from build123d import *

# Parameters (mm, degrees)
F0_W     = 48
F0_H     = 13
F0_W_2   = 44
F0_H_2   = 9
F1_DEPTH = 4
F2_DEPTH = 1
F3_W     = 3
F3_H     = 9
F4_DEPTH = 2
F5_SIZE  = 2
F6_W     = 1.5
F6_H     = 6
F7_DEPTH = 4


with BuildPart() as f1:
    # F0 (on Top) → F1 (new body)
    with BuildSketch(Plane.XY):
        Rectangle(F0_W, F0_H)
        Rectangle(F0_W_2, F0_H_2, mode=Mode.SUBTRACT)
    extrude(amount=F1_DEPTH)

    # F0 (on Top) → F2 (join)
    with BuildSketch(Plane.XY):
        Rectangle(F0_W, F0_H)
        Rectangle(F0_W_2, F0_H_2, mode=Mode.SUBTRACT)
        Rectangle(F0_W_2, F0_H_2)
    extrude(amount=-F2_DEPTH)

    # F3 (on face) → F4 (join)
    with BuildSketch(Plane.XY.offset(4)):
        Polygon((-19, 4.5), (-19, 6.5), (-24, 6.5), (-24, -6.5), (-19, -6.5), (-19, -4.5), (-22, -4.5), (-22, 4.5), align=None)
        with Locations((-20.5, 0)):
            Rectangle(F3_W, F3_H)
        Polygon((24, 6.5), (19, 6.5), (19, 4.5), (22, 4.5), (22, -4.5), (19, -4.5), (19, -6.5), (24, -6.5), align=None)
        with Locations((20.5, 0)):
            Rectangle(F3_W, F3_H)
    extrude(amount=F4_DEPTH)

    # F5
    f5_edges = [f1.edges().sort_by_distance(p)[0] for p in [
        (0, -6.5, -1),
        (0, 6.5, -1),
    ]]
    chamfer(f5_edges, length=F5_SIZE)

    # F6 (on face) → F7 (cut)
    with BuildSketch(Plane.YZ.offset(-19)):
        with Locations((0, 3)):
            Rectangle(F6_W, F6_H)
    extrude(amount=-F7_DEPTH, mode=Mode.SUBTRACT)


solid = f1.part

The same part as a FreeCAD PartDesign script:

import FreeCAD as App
import Part
import Sketcher
from FreeCAD import Vector
Q = App.Units.Quantity


def edges_at(feature, points):
    """Names of the edges that pass closest to the given points."""
    edges = feature.Shape.Edges
    near = lambda p: min(range(len(edges)), key=lambda i: edges[i].distToShape(Part.Vertex(*p))[0])
    return sorted({f"Edge{near(p) + 1}" for p in points})

doc = App.newDocument("Part")
body = doc.addObject("PartDesign::Body", "Body")

# Sketch on XY plane
sketch1 = body.newObject("Sketcher::SketchObject", "Sketch")
sketch1.AttachmentSupport = (doc.getObject("XY_Plane"), [""])
sketch1.MapMode = "FlatFace"
sketch1.addGeometry(Part.LineSegment(Vector(-24, 6, 0), Vector(-24, -6, 0)), False)
sketch1.addGeometry(Part.LineSegment(Vector(-24, -6, 0), Vector(24, -6, 0)), False)
sketch1.addGeometry(Part.LineSegment(Vector(24, -6, 0), Vector(24, 6, 0)), False)
sketch1.addGeometry(Part.LineSegment(Vector(24, 6, 0), Vector(-24, 6, 0)), False)
sketch1.addGeometry(Part.LineSegment(Vector(22, -4, 0), Vector(-22, -4, 0)), False)
sketch1.addGeometry(Part.LineSegment(Vector(-22, -4, 0), Vector(-22, 4, 0)), False)
sketch1.addGeometry(Part.LineSegment(Vector(-22, 4, 0), Vector(22, 4, 0)), False)
sketch1.addGeometry(Part.LineSegment(Vector(22, 4, 0), Vector(22, -4, 0)), False)
sketch1.addConstraint(Sketcher.Constraint("Coincident", 0, 2, 1, 1))
sketch1.addConstraint(Sketcher.Constraint("Coincident", 1, 2, 2, 1))
sketch1.addConstraint(Sketcher.Constraint("Coincident", 2, 2, 3, 1))
sketch1.addConstraint(Sketcher.Constraint("Coincident", 3, 2, 0, 1))
sketch1.addConstraint(Sketcher.Constraint("Coincident", 4, 2, 5, 1))
sketch1.addConstraint(Sketcher.Constraint("Coincident", 5, 2, 6, 1))
sketch1.addConstraint(Sketcher.Constraint("Coincident", 6, 2, 7, 1))
sketch1.addConstraint(Sketcher.Constraint("Coincident", 7, 2, 4, 1))
sketch1.addConstraint(Sketcher.Constraint("Vertical", 0))
sketch1.addConstraint(Sketcher.Constraint("Horizontal", 1))
sketch1.addConstraint(Sketcher.Constraint("Vertical", 2))
sketch1.addConstraint(Sketcher.Constraint("Horizontal", 3))
sketch1.addConstraint(Sketcher.Constraint("Horizontal", 4))
sketch1.addConstraint(Sketcher.Constraint("Vertical", 5))
sketch1.addConstraint(Sketcher.Constraint("Horizontal", 6))
sketch1.addConstraint(Sketcher.Constraint("Vertical", 7))
sketch1.addConstraint(Sketcher.Constraint("Symmetric", 0, 2, 2, 2, -1, 1))
sketch1.addConstraint(Sketcher.Constraint("Symmetric", 4, 2, 6, 2, -1, 1))
sketch1.addConstraint(Sketcher.Constraint("DistanceX", 1, 1, 1, 2, Q("48 mm")))
sketch1.addConstraint(Sketcher.Constraint("DistanceX", 4, 2, 4, 1, Q("44 mm")))
sketch1.addConstraint(Sketcher.Constraint("DistanceY", 0, 2, 0, 1, Q("13 mm")))
sketch1.addConstraint(Sketcher.Constraint("DistanceY", 5, 1, 5, 2, Q("9 mm")))
pad1 = body.newObject("PartDesign::Pad", "Pad")
pad1.Profile = sketch1
pad1.Length = 4

# Sketch on XY plane
sketch2 = body.newObject("Sketcher::SketchObject", "Sketch001")
sketch2.AttachmentSupport = (doc.getObject("XY_Plane"), [""])
sketch2.MapMode = "FlatFace"
sketch2.addGeometry(Part.LineSegment(Vector(-24, 6, 0), Vector(-24, -6, 0)), False)
sketch2.addGeometry(Part.LineSegment(Vector(-24, -6, 0), Vector(24, -6, 0)), False)
sketch2.addGeometry(Part.LineSegment(Vector(24, -6, 0), Vector(24, 6, 0)), False)
sketch2.addGeometry(Part.LineSegment(Vector(24, 6, 0), Vector(-24, 6, 0)), False)
sketch2.addConstraint(Sketcher.Constraint("Coincident", 0, 2, 1, 1))
sketch2.addConstraint(Sketcher.Constraint("Coincident", 1, 2, 2, 1))
sketch2.addConstraint(Sketcher.Constraint("Coincident", 2, 2, 3, 1))
sketch2.addConstraint(Sketcher.Constraint("Coincident", 3, 2, 0, 1))
sketch2.addConstraint(Sketcher.Constraint("Vertical", 0))
sketch2.addConstraint(Sketcher.Constraint("Horizontal", 1))
sketch2.addConstraint(Sketcher.Constraint("Vertical", 2))
sketch2.addConstraint(Sketcher.Constraint("Horizontal", 3))
sketch2.addConstraint(Sketcher.Constraint("Symmetric", 0, 2, 2, 2, -1, 1))
sketch2.addConstraint(Sketcher.Constraint("DistanceX", 1, 1, 1, 2, Q("48 mm")))
sketch2.addConstraint(Sketcher.Constraint("DistanceY", 0, 2, 0, 1, Q("13 mm")))
pad2 = body.newObject("PartDesign::Pad", "Pad001")
pad2.Profile = sketch2
pad2.Length = 1
pad2.Reversed = True

# Sketch on XY plane
sketch3 = body.newObject("Sketcher::SketchObject", "Sketch002")
sketch3.AttachmentSupport = (doc.getObject("XY_Plane"), [""])
sketch3.MapMode = "FlatFace"
sketch3.AttachmentOffset = App.Placement(Vector(0, 0, 4), App.Rotation())
sketch3.addGeometry(Part.LineSegment(Vector(-19, 6, 0), Vector(-24, 6, 0)), False)
sketch3.addGeometry(Part.LineSegment(Vector(-24, 6, 0), Vector(-24, -6, 0)), False)
sketch3.addGeometry(Part.LineSegment(Vector(-24, -6, 0), Vector(-19, -6, 0)), False)
sketch3.addGeometry(Part.LineSegment(Vector(-19, -6, 0), Vector(-19, 6, 0)), False)
sketch3.addGeometry(Part.LineSegment(Vector(24, 6, 0), Vector(19, 6, 0)), False)
sketch3.addGeometry(Part.LineSegment(Vector(19, 6, 0), Vector(19, -6, 0)), False)
sketch3.addGeometry(Part.LineSegment(Vector(19, -6, 0), Vector(24, -6, 0)), False)
sketch3.addGeometry(Part.LineSegment(Vector(24, -6, 0), Vector(24, 6, 0)), False)
sketch3.addConstraint(Sketcher.Constraint("Coincident", 0, 2, 1, 1))
sketch3.addConstraint(Sketcher.Constraint("Coincident", 1, 2, 2, 1))
sketch3.addConstraint(Sketcher.Constraint("Coincident", 2, 2, 3, 1))
sketch3.addConstraint(Sketcher.Constraint("Coincident", 3, 2, 0, 1))
sketch3.addConstraint(Sketcher.Constraint("Coincident", 4, 2, 5, 1))
sketch3.addConstraint(Sketcher.Constraint("Coincident", 5, 2, 6, 1))
sketch3.addConstraint(Sketcher.Constraint("Coincident", 6, 2, 7, 1))
sketch3.addConstraint(Sketcher.Constraint("Coincident", 7, 2, 4, 1))
sketch3.addConstraint(Sketcher.Constraint("Horizontal", 0))
sketch3.addConstraint(Sketcher.Constraint("Vertical", 1))
sketch3.addConstraint(Sketcher.Constraint("Horizontal", 2))
sketch3.addConstraint(Sketcher.Constraint("Vertical", 3))
sketch3.addConstraint(Sketcher.Constraint("Horizontal", 4))
sketch3.addConstraint(Sketcher.Constraint("Vertical", 5))
sketch3.addConstraint(Sketcher.Constraint("Horizontal", 6))
sketch3.addConstraint(Sketcher.Constraint("Vertical", 7))
sketch3.addConstraint(Sketcher.Constraint("Symmetric", 2, 2, 4, 2, -1, 1))
sketch3.addConstraint(Sketcher.Constraint("Symmetric", 0, 2, 6, 2, -1, 1))
sketch3.addConstraint(Sketcher.Constraint("Horizontal", 3, 2, 4, 2))
sketch3.addConstraint(Sketcher.Constraint("DistanceX", 0, 2, 0, 1, Q("5 mm")))
sketch3.addConstraint(Sketcher.Constraint("DistanceY", 1, 2, 1, 1, Q("13 mm")))
sketch3.addConstraint(Sketcher.Constraint("DistanceX", 0, 2, -1, 1, Q("24 mm")))
pad3 = body.newObject("PartDesign::Pad", "Pad002")
pad3.Profile = sketch3
pad3.Length = 2
doc.recompute()

chamfer = body.newObject("PartDesign::Chamfer", "Chamfer")
chamfer.Base = (pad3, edges_at(pad3, [(0, -6.5, -1), (0, 6.5, -1)]))
chamfer.Size = 2

# Sketch on YZ plane
sketch4 = body.newObject("Sketcher::SketchObject", "Sketch003")
sketch4.AttachmentSupport = (doc.getObject("YZ_Plane"), [""])
sketch4.MapMode = "FlatFace"
sketch4.AttachmentOffset = App.Placement(Vector(0, 0, -19), App.Rotation())
sketch4.addGeometry(Part.LineSegment(Vector(-0.8, 6, 0), Vector(-0.8, 0, 0)), False)
sketch4.addGeometry(Part.LineSegment(Vector(-0.8, 0, 0), Vector(0.8, 0, 0)), False)
sketch4.addGeometry(Part.LineSegment(Vector(0.8, 0, 0), Vector(0.8, 6, 0)), False)
sketch4.addGeometry(Part.LineSegment(Vector(0.8, 6, 0), Vector(-0.8, 6, 0)), False)
sketch4.addConstraint(Sketcher.Constraint("Coincident", 0, 2, 1, 1))
sketch4.addConstraint(Sketcher.Constraint("Coincident", 1, 2, 2, 1))
sketch4.addConstraint(Sketcher.Constraint("Coincident", 2, 2, 3, 1))
sketch4.addConstraint(Sketcher.Constraint("Coincident", 3, 2, 0, 1))
sketch4.addConstraint(Sketcher.Constraint("Vertical", 0))
sketch4.addConstraint(Sketcher.Constraint("Horizontal", 1))
sketch4.addConstraint(Sketcher.Constraint("Vertical", 2))
sketch4.addConstraint(Sketcher.Constraint("Horizontal", 3))
sketch4.addConstraint(Sketcher.Constraint("Symmetric", 0, 2, 1, 2, -1, 1))
sketch4.addConstraint(Sketcher.Constraint("DistanceY", 0, 2, 0, 1, Q("6 mm")))
sketch4.addConstraint(Sketcher.Constraint("DistanceX", 1, 1, 1, 2, Q("1.5 mm")))
pocket1 = body.newObject("PartDesign::Pocket", "Pocket")
pocket1.Profile = sketch4
pocket1.Length = 4

doc.recompute()
